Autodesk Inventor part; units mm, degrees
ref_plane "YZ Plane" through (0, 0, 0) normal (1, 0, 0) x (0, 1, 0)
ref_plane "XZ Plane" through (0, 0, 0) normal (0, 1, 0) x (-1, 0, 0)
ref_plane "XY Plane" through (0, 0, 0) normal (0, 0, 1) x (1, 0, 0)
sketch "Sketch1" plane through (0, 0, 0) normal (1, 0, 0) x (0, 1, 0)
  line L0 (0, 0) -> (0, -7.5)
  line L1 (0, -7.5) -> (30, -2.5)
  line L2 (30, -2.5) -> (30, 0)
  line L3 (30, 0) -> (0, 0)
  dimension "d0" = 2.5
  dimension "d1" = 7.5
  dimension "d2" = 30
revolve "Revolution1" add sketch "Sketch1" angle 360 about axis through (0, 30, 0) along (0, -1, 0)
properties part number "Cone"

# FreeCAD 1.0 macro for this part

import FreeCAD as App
import Part
import Sketcher
from FreeCAD import Vector
Q = App.Units.Quantity

doc = App.newDocument("Part")
body = doc.addObject("PartDesign::Body", "Body")

# Sketch on YZ plane
sketch1 = body.newObject("Sketcher::SketchObject", "Sketch")
sketch1.AttachmentSupport = (doc.getObject("YZ_Plane"), [""])
sketch1.MapMode = "FlatFace"
sketch1.addGeometry(Part.LineSegment(Vector(30, 0, 0), Vector(0, 0, 0)), False)
sketch1.addGeometry(Part.LineSegment(Vector(0, 0, 0), Vector(0, -7.5, 0)), False)
sketch1.addGeometry(Part.LineSegment(Vector(0, -7.5, 0), Vector(30, -2.5, 0)), False)
sketch1.addGeometry(Part.LineSegment(Vector(30, -2.5, 0), Vector(30, 0, 0)), False)
sketch1.addConstraint(Sketcher.Constraint("Coincident", 0, 2, 1, 1))
sketch1.addConstraint(Sketcher.Constraint("Coincident", 1, 2, 2, 1))
sketch1.addConstraint(Sketcher.Constraint("Coincident", 2, 2, 3, 1))
sketch1.addConstraint(Sketcher.Constraint("Coincident", 3, 2, 0, 1))
sketch1.addConstraint(Sketcher.Constraint("Horizontal", 0))
sketch1.addConstraint(Sketcher.Constraint("Vertical", 1))
sketch1.addConstraint(Sketcher.Constraint("Vertical", 3))
sketch1.addConstraint(Sketcher.Constraint("Coincident", 0, 2, -1, 1))
sketch1.addConstraint(Sketcher.Constraint("DistanceX", 0, 2, 0, 1, Q("30 mm")))
sketch1.addConstraint(Sketcher.Constraint("DistanceY", 1, 2, 1, 1, Q("7.5 mm")))
sketch1.addConstraint(Sketcher.Constraint("DistanceY", 3, 1, 3, 2, Q("2.5 mm")))
revolution = body.newObject("PartDesign::Revolution", "Revolution")
revolution.Profile = sketch1
revolution.ReferenceAxis = (sketch1, ["H_Axis"])
revolution.Angle = 360

doc.recompute()
